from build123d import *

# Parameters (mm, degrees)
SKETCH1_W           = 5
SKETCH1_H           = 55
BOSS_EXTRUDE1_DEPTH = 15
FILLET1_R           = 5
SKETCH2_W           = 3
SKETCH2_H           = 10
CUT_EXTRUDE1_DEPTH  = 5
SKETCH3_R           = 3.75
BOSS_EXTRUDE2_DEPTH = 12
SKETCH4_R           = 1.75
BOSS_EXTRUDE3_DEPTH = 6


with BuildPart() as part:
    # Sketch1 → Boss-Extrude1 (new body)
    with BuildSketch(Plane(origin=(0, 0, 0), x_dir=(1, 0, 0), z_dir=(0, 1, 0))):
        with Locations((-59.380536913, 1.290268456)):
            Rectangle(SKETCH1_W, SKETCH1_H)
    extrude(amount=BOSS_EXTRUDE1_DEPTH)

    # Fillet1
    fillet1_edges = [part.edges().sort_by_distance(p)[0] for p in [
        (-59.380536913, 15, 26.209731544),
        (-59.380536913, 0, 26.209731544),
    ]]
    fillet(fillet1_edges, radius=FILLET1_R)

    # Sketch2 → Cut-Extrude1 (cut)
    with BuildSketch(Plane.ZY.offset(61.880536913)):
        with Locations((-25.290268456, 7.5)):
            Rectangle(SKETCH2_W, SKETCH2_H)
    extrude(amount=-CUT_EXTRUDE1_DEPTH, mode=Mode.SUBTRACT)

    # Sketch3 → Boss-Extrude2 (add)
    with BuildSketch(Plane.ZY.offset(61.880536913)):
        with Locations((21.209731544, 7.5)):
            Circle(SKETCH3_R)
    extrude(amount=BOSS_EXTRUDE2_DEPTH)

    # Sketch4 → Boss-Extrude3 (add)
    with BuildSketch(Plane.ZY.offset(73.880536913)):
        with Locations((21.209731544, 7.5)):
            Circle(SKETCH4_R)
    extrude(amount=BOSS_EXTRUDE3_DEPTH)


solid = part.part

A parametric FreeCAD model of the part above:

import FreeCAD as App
import Part
import Sketcher
from FreeCAD import Vector


def edges_at(feature, points):
    """Names of the edges that pass closest to the given points."""
    edges = feature.Shape.Edges
    near = lambda p: min(range(len(edges)), key=lambda i: edges[i].distToShape(Part.Vertex(*p))[0])
    return sorted({f"Edge{near(p) + 1}" for p in points})


def add_polygon(sketch, points):
    """Adds a closed chain of lines whose ends are joined by coincident constraints."""
    first, n = sketch.GeometryCount, len(points)
    for a, b in zip(points, points[1:] + points[:1]):
        sketch.addGeometry(Part.LineSegment(App.Vector(*a, 0), App.Vector(*b, 0)), False)
    for i in range(n):
        sketch.addConstraint(Sketcher.Constraint("Coincident", first + i, 2, first + (i + 1) % n, 1))

doc = App.newDocument("Part")
body = doc.addObject("PartDesign::Body", "Body")

# Sketch on XZ plane
sketch1 = body.newObject("Sketcher::SketchObject", "Sketch")
sketch1.AttachmentSupport = (doc.getObject("XZ_Plane"), [""])
sketch1.MapMode = "FlatFace"
add_polygon(sketch1, [(-61.880537, -28.790268), (-61.880537, 26.209732), (-56.880537, 26.209732), (-56.880537, -28.790268)])  # lines 0-3
sketch1.addConstraint([
    Sketcher.Constraint("Vertical", 0),
    Sketcher.Constraint("Horizontal", 1),
    Sketcher.Constraint("Vertical", 2),
    Sketcher.Constraint("Horizontal", 3),
    Sketcher.Constraint("DistanceX", 1, 1, 1, 2, 5.0),
    Sketcher.Constraint("DistanceY", 0, 1, 0, 2, 55.0),
    Sketcher.Constraint("DistanceY", -1, 1, 0, 2, 26.209732),
    Sketcher.Constraint("DistanceX", 0, 2, -1, 1, 61.880537),
])
pad1 = body.newObject("PartDesign::Pad", "Pad")
pad1.Profile = sketch1
pad1.Length = 15
pad1.Reversed = True
doc.recompute()

fillet = body.newObject("PartDesign::Fillet", "Fillet")
fillet.Base = (pad1, edges_at(pad1, [(-59.381, 15, 26.21), (-59.381, 0, 26.21)]))
fillet.Radius = 5

# Sketch on YZ plane
sketch2 = body.newObject("Sketcher::SketchObject", "Sketch001")
sketch2.AttachmentSupport = (doc.getObject("YZ_Plane"), [""])
sketch2.MapMode = "FlatFace"
sketch2.AttachmentOffset = App.Placement(Vector(0, 0, -61.880537), App.Rotation())
add_polygon(sketch2, [(12.5, -26.790268), (2.5, -26.790268), (2.5, -23.790268), (12.5, -23.790268)])  # lines 0-3
sketch2.addConstraint([
    Sketcher.Constraint("Horizontal", 0),
    Sketcher.Constraint("Vertical", 1),
    Sketcher.Constraint("Horizontal", 2),
    Sketcher.Constraint("Vertical", 3),
    Sketcher.Constraint("DistanceX", 0, 2, 0, 1, 10.0),
    Sketcher.Constraint("DistanceY", 1, 1, 1, 2, 3.0),
    Sketcher.Constraint("DistanceX", -1, 1, 0, 2, 2.5),
    Sketcher.Constraint("DistanceY", 0, 2, -1, 1, 26.790268),
])
pocket1 = body.newObject("PartDesign::Pocket", "Pocket")
pocket1.Profile = sketch2
pocket1.Length = 5
pocket1.Reversed = True

# Sketch on YZ plane
sketch3 = body.newObject("Sketcher::SketchObject", "Sketch002")
sketch3.AttachmentSupport = (doc.getObject("YZ_Plane"), [""])
sketch3.MapMode = "FlatFace"
sketch3.AttachmentOffset = App.Placement(Vector(0, 0, -61.880537), App.Rotation())
sketch3.addGeometry(Part.Circle(Vector(7.5, 21.209732, 0), Vector(0, 0, 1), 3.75), False)
sketch3.addConstraint([
    Sketcher.Constraint("Diameter", 0, 7.5),
    Sketcher.Constraint("DistanceX", -1, 1, 0, 3, 7.5),
    Sketcher.Constraint("DistanceY", -1, 1, 0, 3, 21.209732),
])
pad2 = body.newObject("PartDesign::Pad", "Pad001")
pad2.Profile = sketch3
pad2.Length = 12
pad2.Reversed = True

# Sketch on YZ plane
sketch4 = body.newObject("Sketcher::SketchObject", "Sketch003")
sketch4.AttachmentSupport = (doc.getObject("YZ_Plane"), [""])
sketch4.MapMode = "FlatFace"
sketch4.AttachmentOffset = App.Placement(Vector(0, 0, -73.880537), App.Rotation())
sketch4.addGeometry(Part.Circle(Vector(7.5, 21.209732, 0), Vector(0, 0, 1), 1.75), False)
sketch4.addConstraint([
    Sketcher.Constraint("Diameter", 0, 3.5),
    Sketcher.Constraint("DistanceX", -1, 1, 0, 3, 7.5),
    Sketcher.Constraint("DistanceY", -1, 1, 0, 3, 21.209732),
])
pad3 = body.newObject("PartDesign::Pad", "Pad002")
pad3.Profile = sketch4
pad3.Length = 6
pad3.Reversed = True

doc.recompute()
